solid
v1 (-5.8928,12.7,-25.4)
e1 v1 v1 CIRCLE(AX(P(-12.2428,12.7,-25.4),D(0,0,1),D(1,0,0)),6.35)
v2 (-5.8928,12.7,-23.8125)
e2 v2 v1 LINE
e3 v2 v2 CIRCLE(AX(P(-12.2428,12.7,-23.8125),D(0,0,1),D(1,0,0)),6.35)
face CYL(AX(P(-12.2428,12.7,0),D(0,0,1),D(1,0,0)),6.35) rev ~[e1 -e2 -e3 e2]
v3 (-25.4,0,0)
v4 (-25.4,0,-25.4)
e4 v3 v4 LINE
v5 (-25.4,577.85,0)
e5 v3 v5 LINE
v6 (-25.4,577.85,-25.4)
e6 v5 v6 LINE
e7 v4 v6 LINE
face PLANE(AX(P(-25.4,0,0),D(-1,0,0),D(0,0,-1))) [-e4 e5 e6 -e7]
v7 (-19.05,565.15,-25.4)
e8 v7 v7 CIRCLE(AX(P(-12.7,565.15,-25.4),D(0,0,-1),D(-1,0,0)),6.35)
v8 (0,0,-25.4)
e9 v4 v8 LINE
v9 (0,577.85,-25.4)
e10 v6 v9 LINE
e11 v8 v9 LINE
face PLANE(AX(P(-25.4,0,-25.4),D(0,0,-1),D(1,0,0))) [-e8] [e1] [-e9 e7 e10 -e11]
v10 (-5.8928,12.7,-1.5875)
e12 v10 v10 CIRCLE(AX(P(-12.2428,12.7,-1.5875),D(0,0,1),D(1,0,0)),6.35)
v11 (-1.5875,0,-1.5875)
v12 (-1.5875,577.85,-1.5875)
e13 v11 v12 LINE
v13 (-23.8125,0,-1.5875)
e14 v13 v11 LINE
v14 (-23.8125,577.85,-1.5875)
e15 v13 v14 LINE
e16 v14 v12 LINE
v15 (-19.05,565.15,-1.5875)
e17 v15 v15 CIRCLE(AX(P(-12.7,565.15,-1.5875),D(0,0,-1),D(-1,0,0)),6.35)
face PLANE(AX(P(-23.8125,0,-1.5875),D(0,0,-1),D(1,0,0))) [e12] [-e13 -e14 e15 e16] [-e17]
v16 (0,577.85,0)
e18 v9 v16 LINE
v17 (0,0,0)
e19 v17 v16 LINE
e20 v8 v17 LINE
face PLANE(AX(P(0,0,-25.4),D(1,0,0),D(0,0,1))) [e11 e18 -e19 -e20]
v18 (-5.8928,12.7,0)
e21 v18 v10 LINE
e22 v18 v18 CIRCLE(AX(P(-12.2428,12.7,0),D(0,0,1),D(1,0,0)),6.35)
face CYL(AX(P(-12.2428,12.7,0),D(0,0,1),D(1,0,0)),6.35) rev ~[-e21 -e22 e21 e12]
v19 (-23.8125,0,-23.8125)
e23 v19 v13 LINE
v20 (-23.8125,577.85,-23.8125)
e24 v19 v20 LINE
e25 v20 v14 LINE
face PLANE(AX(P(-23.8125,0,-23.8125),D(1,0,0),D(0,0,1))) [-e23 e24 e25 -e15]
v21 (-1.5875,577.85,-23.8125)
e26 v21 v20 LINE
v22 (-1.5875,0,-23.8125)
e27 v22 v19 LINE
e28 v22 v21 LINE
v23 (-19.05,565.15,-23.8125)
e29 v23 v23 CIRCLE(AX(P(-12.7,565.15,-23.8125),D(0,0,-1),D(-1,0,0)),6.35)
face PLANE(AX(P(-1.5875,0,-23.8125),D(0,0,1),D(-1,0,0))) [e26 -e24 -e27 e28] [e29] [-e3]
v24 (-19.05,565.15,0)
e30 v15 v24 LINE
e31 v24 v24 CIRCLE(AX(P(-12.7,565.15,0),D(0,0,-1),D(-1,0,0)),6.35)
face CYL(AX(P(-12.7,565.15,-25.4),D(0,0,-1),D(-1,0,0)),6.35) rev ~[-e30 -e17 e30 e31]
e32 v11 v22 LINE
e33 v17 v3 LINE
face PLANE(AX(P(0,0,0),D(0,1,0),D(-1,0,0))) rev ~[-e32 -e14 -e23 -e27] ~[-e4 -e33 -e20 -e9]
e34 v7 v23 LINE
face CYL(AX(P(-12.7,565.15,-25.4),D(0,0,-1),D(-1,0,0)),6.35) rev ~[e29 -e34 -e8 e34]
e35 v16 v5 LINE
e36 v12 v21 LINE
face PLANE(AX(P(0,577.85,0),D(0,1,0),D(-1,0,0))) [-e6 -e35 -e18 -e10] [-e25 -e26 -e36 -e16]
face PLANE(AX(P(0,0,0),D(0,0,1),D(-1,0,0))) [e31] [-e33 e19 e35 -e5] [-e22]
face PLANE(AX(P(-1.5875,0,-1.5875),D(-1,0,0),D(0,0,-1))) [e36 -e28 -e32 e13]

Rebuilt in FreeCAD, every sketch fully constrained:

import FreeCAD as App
import Part
import Sketcher

V = App.Vector
Q = App.Units.Quantity


def add_polygon(sketch, points):
    """Adds a closed chain of lines whose ends are joined by coincident constraints."""
    first, n = sketch.GeometryCount, len(points)
    for a, b in zip(points, points[1:] + points[:1]):
        sketch.addGeometry(Part.LineSegment(App.Vector(*a, 0), App.Vector(*b, 0)), False)
    for i in range(n):
        sketch.addConstraint(Sketcher.Constraint("Coincident", first + i, 2, first + (i + 1) % n, 1))

doc = App.newDocument("Part")
params = doc.addObject("Spreadsheet::Sheet", "Params")
for row, (alias, value) in enumerate([
    ("sketch1_width", "1 in"),
    ("pad1_length", "22.75 in"),
    ("sketch2_diameter", "0.5 in"),
    ("pocket1_length", "1 in"),
    ("sketch3_diameter", "0.5 in"),
    ("pocket2_length", "1 in"),
], start=1):
    params.set(f"A{row}", alias)
    params.set(f"B{row}", "=" + value)
    params.setAlias(f"B{row}", alias)

body = doc.addObject("PartDesign::Body", "Body")

# Sketch on XZ plane
sketch1 = body.newObject("Sketcher::SketchObject", "Sketch")
sketch1.AttachmentSupport = (doc.getObject("XZ_Plane"), [""])
sketch1.MapMode = "FlatFace"
add_polygon(sketch1, [(-25.4, 0), (0, 0), (0, -25.4), (-25.4, -25.4)])  # lines 0-3
add_polygon(sketch1, [(-23.8125, -1.5875), (-23.8125, -23.8125), (-1.5875, -23.8125), (-1.5875, -1.5875)])  # lines 4-7
sketch1.addConstraint([
    Sketcher.Constraint("Horizontal", 0),
    Sketcher.Constraint("Vertical", 1),
    Sketcher.Constraint("Horizontal", 2),
    Sketcher.Constraint("Vertical", 3),
    Sketcher.Constraint("Vertical", 4),
    Sketcher.Constraint("Horizontal", 5),
    Sketcher.Constraint("Vertical", 6),
    Sketcher.Constraint("Horizontal", 7),
    Sketcher.Constraint("Coincident", 0, 2, -1, 1),
    Sketcher.Constraint("Equal", 2, 1),
    Sketcher.Constraint("Equal", 7, 4),
    Sketcher.Constraint("DistanceX", 0, 1, 0, 2, Q("1 in")),
    Sketcher.Constraint("DistanceX", 5, 2, -1, 1, Q("0.0625 in")),
    Sketcher.Constraint("DistanceY", 6, 2, -1, 1, Q("0.0625 in")),
    Sketcher.Constraint("DistanceX", 2, 2, 4, 2, Q("0.0625 in")),
])
sketch1.setExpression("Constraints[19]", "Params.sketch1_width")
pad1 = body.newObject("PartDesign::Pad", "Pad")
pad1.Profile = sketch1
pad1.setExpression("Length", "Params.pad1_length")
pad1.Reversed = True

# Sketch on XY plane
sketch2 = body.newObject("Sketcher::SketchObject", "Sketch001")
sketch2.AttachmentSupport = (doc.getObject("XY_Plane"), [""])
sketch2.MapMode = "FlatFace"
sketch2.AttachmentOffset = App.Placement(V(0, 0, -1 * 25.4), App.Rotation())
sketch2.addGeometry(Part.Circle(V(-12.7, 565.15, 0), V(0, 0, 1), 6.35), False)
sketch2.addConstraint([
    Sketcher.Constraint("Diameter", 0, Q("0.5 in")),
    Sketcher.Constraint("DistanceX", 0, 3, -1, 1, Q("0.5 in")),
    Sketcher.Constraint("DistanceY", -1, 1, 0, 3, Q("22.25 in")),
])
sketch2.setExpression("Constraints[0]", "Params.sketch2_diameter")
pocket1 = body.newObject("PartDesign::Pocket", "Pocket")
pocket1.Profile = sketch2
pocket1.setExpression("Length", "Params.pocket1_length")
pocket1.Reversed = True

# Sketch on XY plane
sketch3 = body.newObject("Sketcher::SketchObject", "Sketch002")
sketch3.AttachmentSupport = (doc.getObject("XY_Plane"), [""])
sketch3.MapMode = "FlatFace"
sketch3.addGeometry(Part.Circle(V(-12.2428, 12.7, 0), V(0, 0, 1), 6.35), False)
sketch3.addConstraint([
    Sketcher.Constraint("Diameter", 0, Q("0.5 in")),
    Sketcher.Constraint("DistanceY", -1, 1, 0, 3, Q("0.5 in")),
    Sketcher.Constraint("DistanceX", 0, 3, -1, 1, Q("0.482 in")),
])
sketch3.setExpression("Constraints[0]", "Params.sketch3_diameter")
pocket2 = body.newObject("PartDesign::Pocket", "Pocket001")
pocket2.Profile = sketch3
pocket2.setExpression("Length", "Params.pocket2_length")

doc.recompute()
